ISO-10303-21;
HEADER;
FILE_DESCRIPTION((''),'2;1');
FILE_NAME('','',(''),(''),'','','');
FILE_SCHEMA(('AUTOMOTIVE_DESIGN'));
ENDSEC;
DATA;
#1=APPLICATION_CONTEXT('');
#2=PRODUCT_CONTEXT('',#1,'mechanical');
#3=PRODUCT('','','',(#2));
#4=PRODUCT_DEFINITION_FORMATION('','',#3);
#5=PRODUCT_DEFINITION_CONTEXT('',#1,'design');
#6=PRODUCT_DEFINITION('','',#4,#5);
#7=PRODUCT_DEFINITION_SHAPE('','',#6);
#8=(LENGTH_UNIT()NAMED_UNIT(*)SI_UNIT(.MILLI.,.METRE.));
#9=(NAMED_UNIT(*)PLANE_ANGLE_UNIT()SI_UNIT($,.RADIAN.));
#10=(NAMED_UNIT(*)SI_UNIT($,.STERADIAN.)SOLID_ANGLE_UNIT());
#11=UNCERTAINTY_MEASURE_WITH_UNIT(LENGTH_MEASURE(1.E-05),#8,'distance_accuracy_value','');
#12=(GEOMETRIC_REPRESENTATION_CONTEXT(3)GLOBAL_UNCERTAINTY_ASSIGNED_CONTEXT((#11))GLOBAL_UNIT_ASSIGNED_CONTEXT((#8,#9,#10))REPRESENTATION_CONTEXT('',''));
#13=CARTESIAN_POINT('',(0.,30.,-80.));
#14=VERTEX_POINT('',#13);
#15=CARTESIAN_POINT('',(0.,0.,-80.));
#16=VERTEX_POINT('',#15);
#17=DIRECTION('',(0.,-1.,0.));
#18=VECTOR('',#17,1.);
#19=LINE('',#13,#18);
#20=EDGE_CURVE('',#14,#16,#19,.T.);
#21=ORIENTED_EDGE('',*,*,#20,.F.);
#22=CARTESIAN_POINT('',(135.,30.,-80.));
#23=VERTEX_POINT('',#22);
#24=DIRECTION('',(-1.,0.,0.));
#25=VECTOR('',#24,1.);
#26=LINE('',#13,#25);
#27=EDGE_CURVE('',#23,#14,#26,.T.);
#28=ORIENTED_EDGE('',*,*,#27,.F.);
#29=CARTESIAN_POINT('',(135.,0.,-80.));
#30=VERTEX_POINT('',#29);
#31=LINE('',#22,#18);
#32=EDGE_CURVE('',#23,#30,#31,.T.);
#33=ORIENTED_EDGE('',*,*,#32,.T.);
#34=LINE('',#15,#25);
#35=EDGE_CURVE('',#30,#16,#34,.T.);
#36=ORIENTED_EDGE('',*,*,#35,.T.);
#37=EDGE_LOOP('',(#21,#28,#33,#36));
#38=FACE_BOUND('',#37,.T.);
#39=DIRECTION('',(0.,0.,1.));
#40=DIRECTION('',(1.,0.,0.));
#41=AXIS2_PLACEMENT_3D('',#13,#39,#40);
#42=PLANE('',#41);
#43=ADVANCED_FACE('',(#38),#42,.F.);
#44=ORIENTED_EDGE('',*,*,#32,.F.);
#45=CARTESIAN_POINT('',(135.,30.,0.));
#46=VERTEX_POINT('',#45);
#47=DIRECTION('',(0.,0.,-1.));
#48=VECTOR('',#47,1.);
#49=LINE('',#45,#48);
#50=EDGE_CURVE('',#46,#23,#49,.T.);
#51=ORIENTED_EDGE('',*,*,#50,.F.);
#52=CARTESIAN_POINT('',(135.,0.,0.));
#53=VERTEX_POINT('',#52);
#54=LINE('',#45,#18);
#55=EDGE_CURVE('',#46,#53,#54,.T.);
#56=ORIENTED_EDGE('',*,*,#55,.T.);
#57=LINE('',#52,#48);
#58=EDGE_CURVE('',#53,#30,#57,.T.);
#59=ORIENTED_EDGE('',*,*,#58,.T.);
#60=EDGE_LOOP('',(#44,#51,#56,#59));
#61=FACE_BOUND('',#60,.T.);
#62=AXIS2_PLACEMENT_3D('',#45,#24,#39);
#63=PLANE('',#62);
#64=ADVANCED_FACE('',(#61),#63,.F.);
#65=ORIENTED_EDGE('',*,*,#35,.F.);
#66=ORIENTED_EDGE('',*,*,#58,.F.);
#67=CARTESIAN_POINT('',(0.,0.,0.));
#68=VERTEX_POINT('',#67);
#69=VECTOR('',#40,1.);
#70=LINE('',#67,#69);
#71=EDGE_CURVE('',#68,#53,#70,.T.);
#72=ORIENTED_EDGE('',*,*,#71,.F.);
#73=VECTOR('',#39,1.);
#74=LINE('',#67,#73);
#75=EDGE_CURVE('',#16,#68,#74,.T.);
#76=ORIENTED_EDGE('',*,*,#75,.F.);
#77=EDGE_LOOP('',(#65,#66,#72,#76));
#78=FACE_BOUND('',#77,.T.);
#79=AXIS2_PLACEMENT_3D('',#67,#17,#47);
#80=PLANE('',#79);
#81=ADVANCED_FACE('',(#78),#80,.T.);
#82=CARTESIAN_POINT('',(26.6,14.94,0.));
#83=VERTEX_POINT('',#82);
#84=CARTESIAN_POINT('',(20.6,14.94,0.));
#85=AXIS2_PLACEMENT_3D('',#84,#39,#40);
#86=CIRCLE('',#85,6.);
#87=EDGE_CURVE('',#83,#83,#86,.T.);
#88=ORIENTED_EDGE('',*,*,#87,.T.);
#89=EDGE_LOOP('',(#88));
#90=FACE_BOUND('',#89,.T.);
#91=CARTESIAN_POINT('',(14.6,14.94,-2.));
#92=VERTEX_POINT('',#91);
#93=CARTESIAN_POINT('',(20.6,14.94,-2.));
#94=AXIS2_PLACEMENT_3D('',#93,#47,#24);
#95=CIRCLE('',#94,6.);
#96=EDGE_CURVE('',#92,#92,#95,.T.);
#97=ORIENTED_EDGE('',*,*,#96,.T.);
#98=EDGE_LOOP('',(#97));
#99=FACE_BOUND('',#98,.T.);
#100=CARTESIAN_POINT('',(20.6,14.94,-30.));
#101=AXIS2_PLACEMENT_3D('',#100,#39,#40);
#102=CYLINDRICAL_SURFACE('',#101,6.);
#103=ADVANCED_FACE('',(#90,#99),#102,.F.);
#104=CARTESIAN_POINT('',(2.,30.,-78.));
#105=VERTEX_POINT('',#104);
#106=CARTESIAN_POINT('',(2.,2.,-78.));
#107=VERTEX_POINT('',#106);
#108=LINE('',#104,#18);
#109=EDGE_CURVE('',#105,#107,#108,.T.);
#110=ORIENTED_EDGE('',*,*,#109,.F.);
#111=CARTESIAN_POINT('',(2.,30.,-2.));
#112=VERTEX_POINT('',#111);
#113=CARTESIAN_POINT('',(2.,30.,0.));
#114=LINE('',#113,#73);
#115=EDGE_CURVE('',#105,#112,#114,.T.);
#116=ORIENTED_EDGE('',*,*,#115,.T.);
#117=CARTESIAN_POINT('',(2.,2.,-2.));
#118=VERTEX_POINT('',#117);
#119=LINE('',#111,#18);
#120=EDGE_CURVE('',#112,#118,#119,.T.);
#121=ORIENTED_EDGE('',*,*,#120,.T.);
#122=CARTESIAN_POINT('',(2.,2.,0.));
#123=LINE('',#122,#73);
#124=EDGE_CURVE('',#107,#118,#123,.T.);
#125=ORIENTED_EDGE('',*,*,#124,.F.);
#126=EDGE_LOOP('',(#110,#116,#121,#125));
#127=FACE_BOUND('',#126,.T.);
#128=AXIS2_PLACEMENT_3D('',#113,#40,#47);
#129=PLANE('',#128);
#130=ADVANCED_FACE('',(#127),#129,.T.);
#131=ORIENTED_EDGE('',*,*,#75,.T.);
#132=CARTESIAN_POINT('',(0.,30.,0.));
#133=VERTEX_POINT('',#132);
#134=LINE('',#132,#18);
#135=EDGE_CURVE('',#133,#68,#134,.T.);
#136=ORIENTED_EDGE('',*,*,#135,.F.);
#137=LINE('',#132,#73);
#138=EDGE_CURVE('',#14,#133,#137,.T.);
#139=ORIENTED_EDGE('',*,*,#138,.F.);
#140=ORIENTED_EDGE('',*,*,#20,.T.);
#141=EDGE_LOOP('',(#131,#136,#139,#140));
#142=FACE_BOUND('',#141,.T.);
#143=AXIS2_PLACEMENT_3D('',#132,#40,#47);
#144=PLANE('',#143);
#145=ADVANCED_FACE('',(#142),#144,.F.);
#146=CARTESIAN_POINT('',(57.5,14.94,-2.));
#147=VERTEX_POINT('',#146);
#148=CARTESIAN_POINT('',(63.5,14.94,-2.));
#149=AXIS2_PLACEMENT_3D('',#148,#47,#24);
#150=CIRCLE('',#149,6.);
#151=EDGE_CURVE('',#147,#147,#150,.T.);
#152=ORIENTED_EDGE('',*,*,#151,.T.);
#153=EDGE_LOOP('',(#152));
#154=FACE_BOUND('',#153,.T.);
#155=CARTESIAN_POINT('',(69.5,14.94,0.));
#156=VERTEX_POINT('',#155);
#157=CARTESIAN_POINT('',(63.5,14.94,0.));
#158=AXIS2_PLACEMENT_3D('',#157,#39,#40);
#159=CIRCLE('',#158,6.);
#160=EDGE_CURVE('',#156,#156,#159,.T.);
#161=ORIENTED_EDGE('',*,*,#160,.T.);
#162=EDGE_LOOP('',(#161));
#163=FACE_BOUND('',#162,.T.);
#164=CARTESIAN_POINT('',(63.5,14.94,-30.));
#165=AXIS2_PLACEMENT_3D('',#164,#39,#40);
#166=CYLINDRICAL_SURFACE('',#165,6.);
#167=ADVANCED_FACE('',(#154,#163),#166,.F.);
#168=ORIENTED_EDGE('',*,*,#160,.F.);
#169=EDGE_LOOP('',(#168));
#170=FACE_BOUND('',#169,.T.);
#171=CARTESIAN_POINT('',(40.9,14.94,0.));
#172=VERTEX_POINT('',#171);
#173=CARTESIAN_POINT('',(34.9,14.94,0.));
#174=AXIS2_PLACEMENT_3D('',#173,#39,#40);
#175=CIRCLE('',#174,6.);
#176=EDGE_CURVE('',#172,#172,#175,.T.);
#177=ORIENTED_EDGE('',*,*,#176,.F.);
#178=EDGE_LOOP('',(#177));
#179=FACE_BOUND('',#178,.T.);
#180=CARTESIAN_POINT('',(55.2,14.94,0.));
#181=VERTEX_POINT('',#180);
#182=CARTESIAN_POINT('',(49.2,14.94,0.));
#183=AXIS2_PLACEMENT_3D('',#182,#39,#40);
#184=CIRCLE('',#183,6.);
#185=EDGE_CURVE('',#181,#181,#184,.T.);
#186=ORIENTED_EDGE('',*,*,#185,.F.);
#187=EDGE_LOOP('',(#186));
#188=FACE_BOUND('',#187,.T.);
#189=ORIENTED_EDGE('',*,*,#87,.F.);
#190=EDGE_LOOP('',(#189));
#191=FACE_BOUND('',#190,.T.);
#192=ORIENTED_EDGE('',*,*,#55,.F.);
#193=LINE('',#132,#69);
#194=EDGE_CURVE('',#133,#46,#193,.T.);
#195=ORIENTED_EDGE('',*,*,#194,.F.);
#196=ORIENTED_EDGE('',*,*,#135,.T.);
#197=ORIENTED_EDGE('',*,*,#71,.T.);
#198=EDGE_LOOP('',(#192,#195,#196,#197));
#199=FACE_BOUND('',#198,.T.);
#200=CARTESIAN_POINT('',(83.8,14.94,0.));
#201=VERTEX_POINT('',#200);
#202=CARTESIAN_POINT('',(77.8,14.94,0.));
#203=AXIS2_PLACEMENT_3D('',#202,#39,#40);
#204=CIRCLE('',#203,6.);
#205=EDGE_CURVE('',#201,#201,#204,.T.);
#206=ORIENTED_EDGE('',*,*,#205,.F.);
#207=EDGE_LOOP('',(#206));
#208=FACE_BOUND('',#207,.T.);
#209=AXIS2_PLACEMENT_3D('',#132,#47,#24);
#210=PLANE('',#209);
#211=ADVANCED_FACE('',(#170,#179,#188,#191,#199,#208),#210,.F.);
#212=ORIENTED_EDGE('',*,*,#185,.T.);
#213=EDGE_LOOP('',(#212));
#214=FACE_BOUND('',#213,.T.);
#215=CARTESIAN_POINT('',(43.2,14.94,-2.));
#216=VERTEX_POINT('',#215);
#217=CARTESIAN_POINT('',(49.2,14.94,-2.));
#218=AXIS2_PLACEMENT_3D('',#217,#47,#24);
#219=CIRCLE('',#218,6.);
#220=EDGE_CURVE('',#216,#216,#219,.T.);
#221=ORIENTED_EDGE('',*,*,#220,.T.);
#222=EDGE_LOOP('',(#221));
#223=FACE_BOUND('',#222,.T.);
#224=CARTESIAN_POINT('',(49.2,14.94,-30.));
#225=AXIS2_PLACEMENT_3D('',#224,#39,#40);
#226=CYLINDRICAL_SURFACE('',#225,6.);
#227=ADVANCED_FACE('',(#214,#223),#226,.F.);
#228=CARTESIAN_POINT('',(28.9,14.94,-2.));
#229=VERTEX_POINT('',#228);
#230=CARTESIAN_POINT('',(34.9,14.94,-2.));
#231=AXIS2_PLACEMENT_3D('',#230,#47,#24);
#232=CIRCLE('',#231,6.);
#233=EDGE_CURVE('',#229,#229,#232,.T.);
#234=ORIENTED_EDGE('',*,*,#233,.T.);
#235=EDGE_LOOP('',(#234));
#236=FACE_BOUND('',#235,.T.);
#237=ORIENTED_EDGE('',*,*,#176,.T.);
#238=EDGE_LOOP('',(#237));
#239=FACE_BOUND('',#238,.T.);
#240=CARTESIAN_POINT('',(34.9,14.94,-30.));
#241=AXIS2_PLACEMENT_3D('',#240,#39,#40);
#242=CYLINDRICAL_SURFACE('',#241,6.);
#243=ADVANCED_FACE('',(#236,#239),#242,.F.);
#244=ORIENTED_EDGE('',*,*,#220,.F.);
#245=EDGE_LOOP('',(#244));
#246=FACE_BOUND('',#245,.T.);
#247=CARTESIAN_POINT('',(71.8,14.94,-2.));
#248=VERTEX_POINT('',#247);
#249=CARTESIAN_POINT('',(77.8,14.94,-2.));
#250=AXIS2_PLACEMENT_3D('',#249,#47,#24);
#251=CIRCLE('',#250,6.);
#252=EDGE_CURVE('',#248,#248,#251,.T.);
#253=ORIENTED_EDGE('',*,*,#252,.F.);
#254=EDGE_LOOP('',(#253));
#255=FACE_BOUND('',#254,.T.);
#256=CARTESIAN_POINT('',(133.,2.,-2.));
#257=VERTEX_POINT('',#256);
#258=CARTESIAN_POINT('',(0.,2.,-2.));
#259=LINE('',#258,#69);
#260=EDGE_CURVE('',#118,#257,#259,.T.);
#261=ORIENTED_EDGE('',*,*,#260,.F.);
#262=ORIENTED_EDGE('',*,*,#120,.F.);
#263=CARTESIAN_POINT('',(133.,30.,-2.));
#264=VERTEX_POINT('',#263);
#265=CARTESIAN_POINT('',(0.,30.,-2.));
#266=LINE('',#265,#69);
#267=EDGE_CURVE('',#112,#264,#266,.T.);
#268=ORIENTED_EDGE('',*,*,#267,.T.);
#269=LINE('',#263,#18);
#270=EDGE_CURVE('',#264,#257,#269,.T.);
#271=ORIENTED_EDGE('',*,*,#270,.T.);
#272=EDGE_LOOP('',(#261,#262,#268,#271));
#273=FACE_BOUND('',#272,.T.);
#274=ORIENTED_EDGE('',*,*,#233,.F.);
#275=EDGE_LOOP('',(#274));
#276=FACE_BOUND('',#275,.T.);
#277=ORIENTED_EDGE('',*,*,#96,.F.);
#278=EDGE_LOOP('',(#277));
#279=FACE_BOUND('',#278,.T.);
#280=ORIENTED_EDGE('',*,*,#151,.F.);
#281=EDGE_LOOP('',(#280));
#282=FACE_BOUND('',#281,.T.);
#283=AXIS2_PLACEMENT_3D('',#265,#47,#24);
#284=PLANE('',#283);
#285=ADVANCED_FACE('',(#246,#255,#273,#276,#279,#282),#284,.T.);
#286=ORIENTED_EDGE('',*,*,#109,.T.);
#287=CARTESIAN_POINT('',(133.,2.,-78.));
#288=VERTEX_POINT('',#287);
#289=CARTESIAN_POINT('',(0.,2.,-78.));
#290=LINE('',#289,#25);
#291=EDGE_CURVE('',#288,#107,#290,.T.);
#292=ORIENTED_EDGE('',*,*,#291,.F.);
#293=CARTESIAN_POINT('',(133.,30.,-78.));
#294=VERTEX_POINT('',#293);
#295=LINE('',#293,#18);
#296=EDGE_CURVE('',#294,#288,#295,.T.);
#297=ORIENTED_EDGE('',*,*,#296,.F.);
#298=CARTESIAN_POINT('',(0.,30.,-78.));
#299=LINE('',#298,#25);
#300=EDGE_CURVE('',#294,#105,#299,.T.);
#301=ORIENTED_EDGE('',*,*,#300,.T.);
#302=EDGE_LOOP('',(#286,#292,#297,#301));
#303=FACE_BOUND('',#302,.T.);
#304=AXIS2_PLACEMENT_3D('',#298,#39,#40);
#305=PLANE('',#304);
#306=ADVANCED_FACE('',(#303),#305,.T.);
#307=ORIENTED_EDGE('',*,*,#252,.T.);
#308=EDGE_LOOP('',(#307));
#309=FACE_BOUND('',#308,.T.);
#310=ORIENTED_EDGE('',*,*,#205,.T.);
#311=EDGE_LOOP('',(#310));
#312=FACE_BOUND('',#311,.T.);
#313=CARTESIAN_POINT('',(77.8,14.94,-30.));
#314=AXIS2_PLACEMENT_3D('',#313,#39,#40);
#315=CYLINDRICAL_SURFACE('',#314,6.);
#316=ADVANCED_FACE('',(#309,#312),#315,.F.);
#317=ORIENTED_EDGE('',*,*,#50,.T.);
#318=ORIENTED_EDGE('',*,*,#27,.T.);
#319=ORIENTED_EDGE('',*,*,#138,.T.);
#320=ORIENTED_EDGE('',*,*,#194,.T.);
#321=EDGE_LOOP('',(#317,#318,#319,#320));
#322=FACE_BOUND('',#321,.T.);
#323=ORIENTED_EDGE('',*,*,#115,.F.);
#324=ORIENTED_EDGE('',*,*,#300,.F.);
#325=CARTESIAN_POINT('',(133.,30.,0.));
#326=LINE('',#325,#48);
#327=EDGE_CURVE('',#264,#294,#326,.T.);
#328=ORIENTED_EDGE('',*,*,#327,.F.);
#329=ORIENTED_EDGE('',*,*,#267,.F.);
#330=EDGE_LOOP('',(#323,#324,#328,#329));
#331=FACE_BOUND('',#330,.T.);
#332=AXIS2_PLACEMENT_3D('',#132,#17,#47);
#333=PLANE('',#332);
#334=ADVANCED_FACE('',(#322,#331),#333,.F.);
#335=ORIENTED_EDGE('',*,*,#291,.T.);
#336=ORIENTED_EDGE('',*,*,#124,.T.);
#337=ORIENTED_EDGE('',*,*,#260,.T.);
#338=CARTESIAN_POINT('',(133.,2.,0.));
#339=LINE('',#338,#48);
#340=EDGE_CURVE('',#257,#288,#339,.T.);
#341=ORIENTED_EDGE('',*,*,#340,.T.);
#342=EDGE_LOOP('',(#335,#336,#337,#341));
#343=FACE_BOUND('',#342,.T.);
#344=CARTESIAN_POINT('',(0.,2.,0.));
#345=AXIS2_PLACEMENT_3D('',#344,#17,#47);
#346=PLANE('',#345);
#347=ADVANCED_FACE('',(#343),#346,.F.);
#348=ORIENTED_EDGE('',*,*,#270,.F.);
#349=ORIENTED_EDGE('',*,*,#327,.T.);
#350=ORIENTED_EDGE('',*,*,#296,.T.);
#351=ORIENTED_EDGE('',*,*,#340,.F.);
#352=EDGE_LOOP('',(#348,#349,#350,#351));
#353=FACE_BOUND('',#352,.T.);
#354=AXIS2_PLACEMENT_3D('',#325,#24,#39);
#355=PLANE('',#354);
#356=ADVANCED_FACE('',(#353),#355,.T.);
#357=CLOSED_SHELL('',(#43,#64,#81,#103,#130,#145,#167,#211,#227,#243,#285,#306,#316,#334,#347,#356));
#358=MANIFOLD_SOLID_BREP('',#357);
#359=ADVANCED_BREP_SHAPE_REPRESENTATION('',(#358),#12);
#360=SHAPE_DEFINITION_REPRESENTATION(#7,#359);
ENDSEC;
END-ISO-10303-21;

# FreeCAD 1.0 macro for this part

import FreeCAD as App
import Part
import Sketcher
from FreeCAD import Vector
Q = App.Units.Quantity


def faces_at(feature, points):
    """Names of the faces that lie closest to the given points."""
    faces = feature.Shape.Faces
    near = lambda p: min(range(len(faces)), key=lambda i: faces[i].distToShape(Part.Vertex(*p))[0])
    return sorted({f"Face{near(p) + 1}" for p in points})


def add_polygon(sketch, points):
    """Adds a closed chain of lines whose ends are joined by coincident constraints."""
    first, n = sketch.GeometryCount, len(points)
    for a, b in zip(points, points[1:] + points[:1]):
        sketch.addGeometry(Part.LineSegment(App.Vector(*a, 0), App.Vector(*b, 0)), False)
    for i in range(n):
        sketch.addConstraint(Sketcher.Constraint("Coincident", first + i, 2, first + (i + 1) % n, 1))

doc = App.newDocument("Part")
body = doc.addObject("PartDesign::Body", "Body")

# Sketch on XZ plane
sketch1 = body.newObject("Sketcher::SketchObject", "Sketch")
sketch1.AttachmentSupport = (doc.getObject("XZ_Plane"), [""])
sketch1.MapMode = "FlatFace"
add_polygon(sketch1, [(0, -80), (0, 0), (135, 0), (135, -80)])  # lines 0-3
sketch1.addConstraint(Sketcher.Constraint("Vertical", 0))
sketch1.addConstraint(Sketcher.Constraint("Horizontal", 1))
sketch1.addConstraint(Sketcher.Constraint("Vertical", 2))
sketch1.addConstraint(Sketcher.Constraint("Horizontal", 3))
sketch1.addConstraint(Sketcher.Constraint("Coincident", 0, 2, -1, 1))
sketch1.addConstraint(Sketcher.Constraint("DistanceX", 1, 1, 1, 2, Q("135 mm")))
sketch1.addConstraint(Sketcher.Constraint("DistanceY", 0, 1, 0, 2, Q("80 mm")))
pad1 = body.newObject("PartDesign::Pad", "Pad")
pad1.Profile = sketch1
pad1.Length = 30
pad1.Reversed = True
doc.recompute()

thickness = body.newObject("PartDesign::Thickness", "Thickness")
thickness.Base = (pad1, faces_at(pad1, [(67.5, 30, -40)]))
thickness.Value = 2
thickness.Reversed = True
thickness.Join = "Intersection"

# Sketch on XY plane
sketch2 = body.newObject("Sketcher::SketchObject", "Sketch001")
sketch2.AttachmentSupport = (doc.getObject("XY_Plane"), [""])
sketch2.MapMode = "FlatFace"
sketch2.addGeometry(Part.Circle(Vector(21, 15, 0), Vector(0, 0, 1), 6), False)
sketch2.addGeometry(Part.Circle(Vector(35, 15, 0), Vector(0, 0, 1), 6), False)
sketch2.addGeometry(Part.Circle(Vector(49, 15, 0), Vector(0, 0, 1), 6), False)
sketch2.addGeometry(Part.Circle(Vector(64, 15, 0), Vector(0, 0, 1), 6), False)
sketch2.addGeometry(Part.Circle(Vector(78, 15, 0), Vector(0, 0, 1), 6), False)
sketch2.addConstraint(Sketcher.Constraint("Equal", 0, 1))
sketch2.addConstraint(Sketcher.Constraint("Equal", 1, 2))
sketch2.addConstraint(Sketcher.Constraint("Equal", 2, 3))
sketch2.addConstraint(Sketcher.Constraint("Equal", 3, 4))
sketch2.addConstraint(Sketcher.Constraint("Horizontal", 0, 3, 1, 3))
sketch2.addConstraint(Sketcher.Constraint("Horizontal", 1, 3, 2, 3))
sketch2.addConstraint(Sketcher.Constraint("Horizontal", 2, 3, 3, 3))
sketch2.addConstraint(Sketcher.Constraint("Horizontal", 3, 3, 4, 3))
sketch2.addConstraint(Sketcher.Constraint("Diameter", 0, Q("12 mm")))
sketch2.addConstraint(Sketcher.Constraint("DistanceX", -1, 1, 0, 3, Q("20.6 mm")))
sketch2.addConstraint(Sketcher.Constraint("DistanceX", -1, 1, 1, 3, Q("34.9 mm")))
sketch2.addConstraint(Sketcher.Constraint("DistanceX", -1, 1, 2, 3, Q("49.2 mm")))
sketch2.addConstraint(Sketcher.Constraint("DistanceX", -1, 1, 3, 3, Q("63.5 mm")))
sketch2.addConstraint(Sketcher.Constraint("DistanceX", -1, 1, 4, 3, Q("77.8 mm")))
sketch2.addConstraint(Sketcher.Constraint("DistanceY", -1, 1, 0, 3, Q("14.94 mm")))
pocket1 = body.newObject("PartDesign::Pocket", "Pocket")
pocket1.Profile = sketch2
pocket1.Length = 30

doc.recompute()
